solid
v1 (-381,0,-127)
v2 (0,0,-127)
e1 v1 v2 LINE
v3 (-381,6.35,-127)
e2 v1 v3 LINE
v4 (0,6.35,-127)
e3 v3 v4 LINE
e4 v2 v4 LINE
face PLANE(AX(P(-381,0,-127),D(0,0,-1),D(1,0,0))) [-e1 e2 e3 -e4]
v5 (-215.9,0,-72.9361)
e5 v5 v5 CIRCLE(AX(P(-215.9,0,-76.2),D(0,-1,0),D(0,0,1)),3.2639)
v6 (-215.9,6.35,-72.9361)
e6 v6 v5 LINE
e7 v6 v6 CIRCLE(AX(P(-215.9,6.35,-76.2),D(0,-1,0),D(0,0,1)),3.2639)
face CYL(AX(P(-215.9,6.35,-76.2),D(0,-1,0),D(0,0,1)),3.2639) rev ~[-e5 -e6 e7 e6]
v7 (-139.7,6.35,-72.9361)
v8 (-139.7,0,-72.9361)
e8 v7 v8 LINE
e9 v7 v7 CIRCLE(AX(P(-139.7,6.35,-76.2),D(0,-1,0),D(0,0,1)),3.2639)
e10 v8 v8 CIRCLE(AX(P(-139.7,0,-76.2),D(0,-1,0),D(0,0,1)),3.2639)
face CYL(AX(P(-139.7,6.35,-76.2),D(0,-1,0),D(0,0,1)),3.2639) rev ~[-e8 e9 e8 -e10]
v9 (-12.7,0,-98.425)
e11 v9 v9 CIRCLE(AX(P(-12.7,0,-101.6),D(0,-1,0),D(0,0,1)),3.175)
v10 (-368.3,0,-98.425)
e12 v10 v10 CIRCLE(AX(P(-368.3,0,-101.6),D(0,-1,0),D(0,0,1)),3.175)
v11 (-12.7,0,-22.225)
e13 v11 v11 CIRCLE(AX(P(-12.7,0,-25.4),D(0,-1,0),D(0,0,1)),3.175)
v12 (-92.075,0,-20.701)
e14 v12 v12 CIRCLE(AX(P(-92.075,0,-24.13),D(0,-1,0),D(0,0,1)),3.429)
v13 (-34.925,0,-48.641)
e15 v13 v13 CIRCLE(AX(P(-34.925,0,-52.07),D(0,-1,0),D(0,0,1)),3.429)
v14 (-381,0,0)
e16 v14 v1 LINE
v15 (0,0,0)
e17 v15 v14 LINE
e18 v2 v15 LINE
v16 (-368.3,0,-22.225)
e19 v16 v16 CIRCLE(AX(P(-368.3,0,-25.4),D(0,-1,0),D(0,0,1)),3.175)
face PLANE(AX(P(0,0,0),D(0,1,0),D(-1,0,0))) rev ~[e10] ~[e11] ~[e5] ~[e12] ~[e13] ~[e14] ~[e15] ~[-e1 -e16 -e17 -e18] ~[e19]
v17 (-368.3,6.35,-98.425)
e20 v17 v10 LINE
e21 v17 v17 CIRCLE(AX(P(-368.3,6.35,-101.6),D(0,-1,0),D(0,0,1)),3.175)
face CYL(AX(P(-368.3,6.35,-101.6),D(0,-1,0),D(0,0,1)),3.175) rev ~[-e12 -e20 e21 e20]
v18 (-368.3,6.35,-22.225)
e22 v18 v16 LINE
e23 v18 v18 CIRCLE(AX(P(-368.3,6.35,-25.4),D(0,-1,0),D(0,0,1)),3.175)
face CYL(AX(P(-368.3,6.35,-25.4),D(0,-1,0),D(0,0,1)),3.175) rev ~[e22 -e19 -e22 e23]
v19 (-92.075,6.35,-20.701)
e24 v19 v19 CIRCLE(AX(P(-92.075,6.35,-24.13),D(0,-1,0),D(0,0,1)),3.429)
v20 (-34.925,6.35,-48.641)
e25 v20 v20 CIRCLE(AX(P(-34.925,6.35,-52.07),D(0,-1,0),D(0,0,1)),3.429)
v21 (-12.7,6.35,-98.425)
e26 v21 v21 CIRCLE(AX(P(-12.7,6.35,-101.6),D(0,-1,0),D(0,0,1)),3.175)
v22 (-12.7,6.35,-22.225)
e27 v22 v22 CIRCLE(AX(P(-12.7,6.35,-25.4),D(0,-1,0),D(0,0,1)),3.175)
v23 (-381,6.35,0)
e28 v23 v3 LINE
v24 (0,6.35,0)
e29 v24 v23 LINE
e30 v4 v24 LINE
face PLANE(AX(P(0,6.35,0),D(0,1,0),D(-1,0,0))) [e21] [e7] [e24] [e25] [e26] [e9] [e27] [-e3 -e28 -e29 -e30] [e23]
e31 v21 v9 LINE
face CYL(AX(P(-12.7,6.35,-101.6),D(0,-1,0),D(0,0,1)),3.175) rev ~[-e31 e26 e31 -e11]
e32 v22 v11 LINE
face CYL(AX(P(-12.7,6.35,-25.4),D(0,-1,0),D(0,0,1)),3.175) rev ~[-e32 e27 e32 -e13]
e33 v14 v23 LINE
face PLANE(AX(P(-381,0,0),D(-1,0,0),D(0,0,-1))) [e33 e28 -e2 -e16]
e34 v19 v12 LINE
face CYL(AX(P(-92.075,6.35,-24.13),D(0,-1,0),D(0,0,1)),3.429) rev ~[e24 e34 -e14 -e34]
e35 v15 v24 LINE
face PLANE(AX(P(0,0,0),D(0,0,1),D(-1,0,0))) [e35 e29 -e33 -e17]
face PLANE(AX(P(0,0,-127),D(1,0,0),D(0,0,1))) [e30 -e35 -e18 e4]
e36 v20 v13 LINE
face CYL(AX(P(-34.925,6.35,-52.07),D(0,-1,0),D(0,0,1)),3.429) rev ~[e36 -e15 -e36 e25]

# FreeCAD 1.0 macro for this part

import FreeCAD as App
import Part
import Sketcher
Q = App.Units.Quantity


def add_polygon(sketch, points):
    """Adds a closed chain of lines whose ends are joined by coincident constraints."""
    first, n = sketch.GeometryCount, len(points)
    for a, b in zip(points, points[1:] + points[:1]):
        sketch.addGeometry(Part.LineSegment(App.Vector(*a, 0), App.Vector(*b, 0)), False)
    for i in range(n):
        sketch.addConstraint(Sketcher.Constraint("Coincident", first + i, 2, first + (i + 1) % n, 1))

doc = App.newDocument("Part")
body = doc.addObject("PartDesign::Body", "Body")

# Sketch on XZ plane
sketch1 = body.newObject("Sketcher::SketchObject", "Sketch")
sketch1.AttachmentSupport = (doc.getObject("XZ_Plane"), [""])
sketch1.MapMode = "FlatFace"
add_polygon(sketch1, [(-381, 0), (0, 0), (0, -127), (-381, -127)])  # lines 0-3
sketch1.addConstraint([
    Sketcher.Constraint("Horizontal", 0),
    Sketcher.Constraint("Vertical", 1),
    Sketcher.Constraint("Horizontal", 2),
    Sketcher.Constraint("Vertical", 3),
    Sketcher.Constraint("Coincident", 0, 2, -1, 1),
    Sketcher.Constraint("DistanceX", 0, 1, 0, 2, Q("15 in")),
    Sketcher.Constraint("DistanceY", 1, 2, 1, 1, Q("5 in")),
])
pad1 = body.newObject("PartDesign::Pad", "Pad")
pad1.Profile = sketch1
pad1.Length = Q("0.25 in")
pad1.Reversed = True

# Sketch on XZ plane
sketch2 = body.newObject("Sketcher::SketchObject", "Sketch001")
sketch2.AttachmentSupport = (doc.getObject("XZ_Plane"), [""])
sketch2.MapMode = "FlatFace"
sketch2.AttachmentOffset = App.Placement(App.Vector(0, 0, -0.25 * 25.4), App.Rotation())
sketch2.addGeometry([
    Part.Circle(App.Vector(-368.3, -101.6, 0), App.Vector(0, 0, 1), 3.175),
    Part.Circle(App.Vector(-368.3, -25.4, 0), App.Vector(0, 0, 1), 3.175),
    Part.Circle(App.Vector(-12.7, -101.6, 0), App.Vector(0, 0, 1), 3.175),
    Part.Circle(App.Vector(-12.7, -25.4, 0), App.Vector(0, 0, 1), 3.175),
], False)
sketch2.addConstraint([
    Sketcher.Constraint("Equal", 0, 1),
    Sketcher.Constraint("Equal", 1, 2),
    Sketcher.Constraint("Equal", 2, 3),
    Sketcher.Constraint("Horizontal", 0, 3, 2, 3),
    Sketcher.Constraint("Horizontal", 1, 3, 3, 3),
    Sketcher.Constraint("Vertical", 0, 3, 1, 3),
    Sketcher.Constraint("Vertical", 2, 3, 3, 3),
    Sketcher.Constraint("Diameter", 0, Q("0.25 in")),
    Sketcher.Constraint("DistanceY", 0, 3, -1, 1, Q("4 in")),
    Sketcher.Constraint("DistanceY", 1, 3, -1, 1, Q("1 in")),
    Sketcher.Constraint("DistanceX", 0, 3, 2, 3, Q("14 in")),
    Sketcher.Constraint("DistanceX", 0, 3, -1, 1, Q("14.5 in")),
])
doc.recompute()
hole = body.newObject("PartDesign::Hole", "Hole")
hole.Profile = sketch2
hole.ThreadType = "None"
hole.Diameter = Q("0.25 in")
hole.DepthType = "ThroughAll"
hole.Reversed = True

# Sketch on XZ plane
sketch3 = body.newObject("Sketcher::SketchObject", "Sketch002")
sketch3.AttachmentSupport = (doc.getObject("XZ_Plane"), [""])
sketch3.MapMode = "FlatFace"
sketch3.AttachmentOffset = App.Placement(App.Vector(0, 0, -0.25 * 25.4), App.Rotation())
sketch3.addGeometry([
    Part.Circle(App.Vector(-215.9, -76.2, 0), App.Vector(0, 0, 1), 3.2639),
    Part.Circle(App.Vector(-139.7, -76.2, 0), App.Vector(0, 0, 1), 3.2639),
], False)
sketch3.addConstraint([
    Sketcher.Constraint("Equal", 0, 1),
    Sketcher.Constraint("Horizontal", 0, 3, 1, 3),
    Sketcher.Constraint("Diameter", 0, Q("0.257 in")),
    Sketcher.Constraint("DistanceY", 0, 3, -1, 1, Q("3 in")),
    Sketcher.Constraint("DistanceX", 0, 3, 1, 3, Q("3 in")),
    Sketcher.Constraint("DistanceX", 0, 3, -1, 1, Q("8.5 in")),
])
doc.recompute()
hole2 = body.newObject("PartDesign::Hole", "Hole001")
hole2.Profile = sketch3
hole2.ThreadType = "None"
hole2.Diameter = Q("0.257 in")
hole2.DepthType = "ThroughAll"
hole2.Reversed = True

# Sketch on XZ plane
sketch4 = body.newObject("Sketcher::SketchObject", "Sketch003")
sketch4.AttachmentSupport = (doc.getObject("XZ_Plane"), [""])
sketch4.MapMode = "FlatFace"
sketch4.AttachmentOffset = App.Placement(App.Vector(0, 0, -0.25 * 25.4), App.Rotation())
sketch4.addGeometry([
    Part.Circle(App.Vector(-92.075, -24.13, 0), App.Vector(0, 0, 1), 3.429),
    Part.Circle(App.Vector(-34.925, -52.07, 0), App.Vector(0, 0, 1), 3.429),
], False)
sketch4.addConstraint([
    Sketcher.Constraint("Equal", 0, 1),
    Sketcher.Constraint("Diameter", 0, Q("0.27 in")),
    Sketcher.Constraint("DistanceY", 1, 3, 0, 3, Q("1.1 in")),
    Sketcher.Constraint("DistanceY", 0, 3, -1, 1, Q("0.95 in")),
    Sketcher.Constraint("DistanceX", 0, 3, 1, 3, Q("2.25 in")),
    Sketcher.Constraint("DistanceX", 0, 3, -1, 1, Q("3.625 in")),
])
doc.recompute()
hole3 = body.newObject("PartDesign::Hole", "Hole002")
hole3.Profile = sketch4
hole3.ThreadType = "None"
hole3.Diameter = Q("0.27 in")
hole3.DepthType = "ThroughAll"
hole3.Reversed = True

doc.recompute()
